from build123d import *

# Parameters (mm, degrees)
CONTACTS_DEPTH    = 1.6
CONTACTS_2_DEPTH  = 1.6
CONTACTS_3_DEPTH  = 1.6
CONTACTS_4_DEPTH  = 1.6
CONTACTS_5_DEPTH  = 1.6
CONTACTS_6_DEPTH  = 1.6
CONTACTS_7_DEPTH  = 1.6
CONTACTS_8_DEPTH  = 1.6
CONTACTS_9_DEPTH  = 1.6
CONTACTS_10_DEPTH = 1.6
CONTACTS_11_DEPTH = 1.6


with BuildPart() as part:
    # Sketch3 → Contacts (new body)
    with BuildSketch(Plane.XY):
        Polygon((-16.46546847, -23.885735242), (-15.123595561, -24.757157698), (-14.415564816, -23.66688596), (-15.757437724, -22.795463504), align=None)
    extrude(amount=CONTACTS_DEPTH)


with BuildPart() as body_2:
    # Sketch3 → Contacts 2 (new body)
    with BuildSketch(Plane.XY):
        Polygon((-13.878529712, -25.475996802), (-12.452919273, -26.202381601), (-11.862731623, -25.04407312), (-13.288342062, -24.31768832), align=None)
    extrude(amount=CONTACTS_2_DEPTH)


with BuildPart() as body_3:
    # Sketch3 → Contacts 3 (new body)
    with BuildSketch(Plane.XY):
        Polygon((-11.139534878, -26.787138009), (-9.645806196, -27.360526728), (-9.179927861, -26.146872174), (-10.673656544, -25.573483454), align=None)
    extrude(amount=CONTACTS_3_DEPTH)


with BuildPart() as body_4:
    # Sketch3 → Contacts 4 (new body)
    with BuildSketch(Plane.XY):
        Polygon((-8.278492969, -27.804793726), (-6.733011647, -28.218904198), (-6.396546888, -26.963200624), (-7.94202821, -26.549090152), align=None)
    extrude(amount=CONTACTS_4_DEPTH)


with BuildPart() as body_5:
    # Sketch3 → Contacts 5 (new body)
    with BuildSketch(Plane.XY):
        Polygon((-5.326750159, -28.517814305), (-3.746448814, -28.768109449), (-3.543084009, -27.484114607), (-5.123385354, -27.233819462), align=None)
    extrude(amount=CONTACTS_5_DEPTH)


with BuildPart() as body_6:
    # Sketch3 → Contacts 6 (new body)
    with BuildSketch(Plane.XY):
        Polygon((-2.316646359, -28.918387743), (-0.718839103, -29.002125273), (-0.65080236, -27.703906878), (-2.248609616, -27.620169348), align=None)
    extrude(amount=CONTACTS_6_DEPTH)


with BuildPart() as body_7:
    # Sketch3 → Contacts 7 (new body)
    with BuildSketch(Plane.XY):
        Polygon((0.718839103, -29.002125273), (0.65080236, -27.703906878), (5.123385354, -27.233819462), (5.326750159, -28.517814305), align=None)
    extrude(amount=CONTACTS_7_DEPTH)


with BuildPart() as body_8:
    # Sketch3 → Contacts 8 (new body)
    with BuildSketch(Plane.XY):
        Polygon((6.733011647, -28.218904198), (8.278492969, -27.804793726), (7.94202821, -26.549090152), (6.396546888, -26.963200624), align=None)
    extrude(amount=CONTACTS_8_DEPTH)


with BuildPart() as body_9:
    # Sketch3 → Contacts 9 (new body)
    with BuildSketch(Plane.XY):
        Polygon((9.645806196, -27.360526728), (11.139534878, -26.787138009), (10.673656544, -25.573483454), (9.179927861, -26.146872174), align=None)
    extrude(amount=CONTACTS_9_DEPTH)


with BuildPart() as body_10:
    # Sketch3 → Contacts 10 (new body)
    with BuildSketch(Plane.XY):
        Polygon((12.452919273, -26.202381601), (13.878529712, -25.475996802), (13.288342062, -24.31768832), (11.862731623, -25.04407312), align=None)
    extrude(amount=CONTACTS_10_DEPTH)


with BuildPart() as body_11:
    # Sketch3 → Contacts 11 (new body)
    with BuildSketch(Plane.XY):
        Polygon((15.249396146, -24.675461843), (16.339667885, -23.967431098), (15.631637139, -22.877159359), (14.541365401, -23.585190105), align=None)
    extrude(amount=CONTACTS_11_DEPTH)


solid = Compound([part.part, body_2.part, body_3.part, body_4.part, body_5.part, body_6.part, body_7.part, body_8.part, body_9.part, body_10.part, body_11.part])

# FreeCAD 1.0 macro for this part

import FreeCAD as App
import Part
import Sketcher
Q = App.Units.Quantity

doc = App.newDocument("Part")
body = doc.addObject("PartDesign::Body", "Body")

sketch1 = body.newObject("Sketcher::SketchObject", "Sketch")
sketch1.AttachmentSupport = (doc.getObject("XY_Plane"), [""])
sketch1.MapMode = "FlatFace"
sketch1.addGeometry(Part.LineSegment(App.Vector(-16.465468, -23.885735, 0), App.Vector(-15.123596, -24.757158, 0)), False)
sketch1.addGeometry(Part.LineSegment(App.Vector(-15.123596, -24.757158, 0), App.Vector(-14.415565, -23.666886, 0)), False)
sketch1.addGeometry(Part.LineSegment(App.Vector(-14.415565, -23.666886, 0), App.Vector(-15.757438, -22.795464, 0)), False)
sketch1.addGeometry(Part.LineSegment(App.Vector(-15.757438, -22.795464, 0), App.Vector(-16.465468, -23.885735, 0)), False)
sketch1.addConstraint(Sketcher.Constraint("Coincident", 0, 2, 1, 1))
sketch1.addConstraint(Sketcher.Constraint("Coincident", 1, 2, 2, 1))
sketch1.addConstraint(Sketcher.Constraint("Coincident", 2, 2, 3, 1))
sketch1.addConstraint(Sketcher.Constraint("Coincident", 3, 2, 0, 1))
sketch1.addConstraint(Sketcher.Constraint("Perpendicular", 0, 1))
sketch1.addConstraint(Sketcher.Constraint("Perpendicular", 1, 2))
sketch1.addConstraint(Sketcher.Constraint("Perpendicular", 2, 3))
sketch1.addConstraint(Sketcher.Constraint("Angle", 0, Q("-33 deg")))
sketch1.addConstraint(Sketcher.Constraint("Distance", 0, 1.6))
sketch1.addConstraint(Sketcher.Constraint("Distance", 1, 1.3))
sketch1.addConstraint(Sketcher.Constraint("DistanceX", 3, 2, -1, 1, 16.465468))
sketch1.addConstraint(Sketcher.Constraint("DistanceY", 0, 2, -1, 1, 24.757158))
pad1 = body.newObject("PartDesign::Pad", "Pad")
pad1.Profile = sketch1
pad1.Length = 1.6
body2 = doc.addObject("PartDesign::Body", "Body001")

sketch2 = body2.newObject("Sketcher::SketchObject", "Sketch001")
sketch2.AttachmentSupport = (doc.getObject("XY_Plane001"), [""])
sketch2.MapMode = "FlatFace"
sketch2.addGeometry(Part.LineSegment(App.Vector(-13.87853, -25.475997, 0), App.Vector(-12.452919, -26.202382, 0)), False)
sketch2.addGeometry(Part.LineSegment(App.Vector(-12.452919, -26.202382, 0), App.Vector(-11.862732, -25.044073, 0)), False)
sketch2.addGeometry(Part.LineSegment(App.Vector(-11.862732, -25.044073, 0), App.Vector(-13.288342, -24.317688, 0)), False)
sketch2.addGeometry(Part.LineSegment(App.Vector(-13.288342, -24.317688, 0), App.Vector(-13.87853, -25.475997, 0)), False)
sketch2.addConstraint(Sketcher.Constraint("Coincident", 0, 2, 1, 1))
sketch2.addConstraint(Sketcher.Constraint("Coincident", 1, 2, 2, 1))
sketch2.addConstraint(Sketcher.Constraint("Coincident", 2, 2, 3, 1))
sketch2.addConstraint(Sketcher.Constraint("Coincident", 3, 2, 0, 1))
sketch2.addConstraint(Sketcher.Constraint("Perpendicular", 0, 1))
sketch2.addConstraint(Sketcher.Constraint("Perpendicular", 1, 2))
sketch2.addConstraint(Sketcher.Constraint("Perpendicular", 2, 3))
sketch2.addConstraint(Sketcher.Constraint("Angle", 0, Q("-27 deg")))
sketch2.addConstraint(Sketcher.Constraint("Distance", 0, 1.6))
sketch2.addConstraint(Sketcher.Constraint("Distance", 1, 1.3))
sketch2.addConstraint(Sketcher.Constraint("DistanceX", 0, 2, -1, 1, 12.452919))
sketch2.addConstraint(Sketcher.Constraint("DistanceY", 0, 2, -1, 1, 26.202382))
pad2 = body2.newObject("PartDesign::Pad", "Pad001")
pad2.Profile = sketch2
pad2.Length = 1.6
body3 = doc.addObject("PartDesign::Body", "Body002")

sketch3 = body3.newObject("Sketcher::SketchObject", "Sketch002")
sketch3.AttachmentSupport = (doc.getObject("XY_Plane002"), [""])
sketch3.MapMode = "FlatFace"
sketch3.addGeometry(Part.LineSegment(App.Vector(-11.139535, -26.787138, 0), App.Vector(-9.645806, -27.360527, 0)), False)
sketch3.addGeometry(Part.LineSegment(App.Vector(-9.645806, -27.360527, 0), App.Vector(-9.179928, -26.146872, 0)), False)
sketch3.addGeometry(Part.LineSegment(App.Vector(-9.179928, -26.146872, 0), App.Vector(-10.673657, -25.573483, 0)), False)
sketch3.addGeometry(Part.LineSegment(App.Vector(-10.673657, -25.573483, 0), App.Vector(-11.139535, -26.787138, 0)), False)
sketch3.addConstraint(Sketcher.Constraint("Coincident", 0, 2, 1, 1))
sketch3.addConstraint(Sketcher.Constraint("Coincident", 1, 2, 2, 1))
sketch3.addConstraint(Sketcher.Constraint("Coincident", 2, 2, 3, 1))
sketch3.addConstraint(Sketcher.Constraint("Coincident", 3, 2, 0, 1))
sketch3.addConstraint(Sketcher.Constraint("Perpendicular", 0, 1))
sketch3.addConstraint(Sketcher.Constraint("Perpendicular", 1, 2))
sketch3.addConstraint(Sketcher.Constraint("Perpendicular", 2, 3))
sketch3.addConstraint(Sketcher.Constraint("Angle", 0, Q("-21 deg")))
sketch3.addConstraint(Sketcher.Constraint("Distance", 0, 1.6))
sketch3.addConstraint(Sketcher.Constraint("Distance", 1, 1.3))
sketch3.addConstraint(Sketcher.Constraint("DistanceY", 3, 2, -1, 1, 26.787138))
sketch3.addConstraint(Sketcher.Constraint("DistanceX", 0, 2, -1, 1, 9.645806))
pad3 = body3.newObject("PartDesign::Pad", "Pad002")
pad3.Profile = sketch3
pad3.Length = 1.6
body4 = doc.addObject("PartDesign::Body", "Body003")

sketch4 = body4.newObject("Sketcher::SketchObject", "Sketch003")
sketch4.AttachmentSupport = (doc.getObject("XY_Plane003"), [""])
sketch4.MapMode = "FlatFace"
sketch4.addGeometry(Part.LineSegment(App.Vector(-8.278493, -27.804794, 0), App.Vector(-6.733012, -28.218904, 0)), False)
sketch4.addGeometry(Part.LineSegment(App.Vector(-6.733012, -28.218904, 0), App.Vector(-6.396547, -26.963201, 0)), False)
sketch4.addGeometry(Part.LineSegment(App.Vector(-6.396547, -26.963201, 0), App.Vector(-7.942028, -26.54909, 0)), False)
sketch4.addGeometry(Part.LineSegment(App.Vector(-7.942028, -26.54909, 0), App.Vector(-8.278493, -27.804794, 0)), False)
sketch4.addConstraint(Sketcher.Constraint("Coincident", 0, 2, 1, 1))
sketch4.addConstraint(Sketcher.Constraint("Coincident", 1, 2, 2, 1))
sketch4.addConstraint(Sketcher.Constraint("Coincident", 2, 2, 3, 1))
sketch4.addConstraint(Sketcher.Constraint("Coincident", 3, 2, 0, 1))
sketch4.addConstraint(Sketcher.Constraint("Perpendicular", 0, 1))
sketch4.addConstraint(Sketcher.Constraint("Perpendicular", 1, 2))
sketch4.addConstraint(Sketcher.Constraint("Perpendicular", 2, 3))
sketch4.addConstraint(Sketcher.Constraint("Angle", 0, Q("-15 deg")))
sketch4.addConstraint(Sketcher.Constraint("Distance", 0, 1.6))
sketch4.addConstraint(Sketcher.Constraint("Distance", 1, 1.3))
sketch4.addConstraint(Sketcher.Constraint("DistanceY", 1, 2, -1, 1, 26.963201))
sketch4.addConstraint(Sketcher.Constraint("DistanceX", 0, 2, -1, 1, 6.733012))
pad4 = body4.newObject("PartDesign::Pad", "Pad003")
pad4.Profile = sketch4
pad4.Length = 1.6
body5 = doc.addObject("PartDesign::Body", "Body004")

sketch5 = body5.newObject("Sketcher::SketchObject", "Sketch004")
sketch5.AttachmentSupport = (doc.getObject("XY_Plane004"), [""])
sketch5.MapMode = "FlatFace"
sketch5.addGeometry(Part.LineSegment(App.Vector(-5.32675, -28.517814, 0), App.Vector(-3.746449, -28.768109, 0)), False)
sketch5.addGeometry(Part.LineSegment(App.Vector(-3.746449, -28.768109, 0), App.Vector(-3.543084, -27.484115, 0)), False)
sketch5.addGeometry(Part.LineSegment(App.Vector(-3.543084, -27.484115, 0), App.Vector(-5.123385, -27.233819, 0)), False)
sketch5.addGeometry(Part.LineSegment(App.Vector(-5.123385, -27.233819, 0), App.Vector(-5.32675, -28.517814, 0)), False)
sketch5.addConstraint(Sketcher.Constraint("Coincident", 0, 2, 1, 1))
sketch5.addConstraint(Sketcher.Constraint("Coincident", 1, 2, 2, 1))
sketch5.addConstraint(Sketcher.Constraint("Coincident", 2, 2, 3, 1))
sketch5.addConstraint(Sketcher.Constraint("Coincident", 3, 2, 0, 1))
sketch5.addConstraint(Sketcher.Constraint("Perpendicular", 0, 1))
sketch5.addConstraint(Sketcher.Constraint("Perpendicular", 1, 2))
sketch5.addConstraint(Sketcher.Constraint("Perpendicular", 2, 3))
sketch5.addConstraint(Sketcher.Constraint("Angle", 0, Q("-9 deg")))
sketch5.addConstraint(Sketcher.Constraint("Distance", 0, 1.6))
sketch5.addConstraint(Sketcher.Constraint("Distance", 1, 1.3))
sketch5.addConstraint(Sketcher.Constraint("DistanceX", 0, 2, -1, 1, 3.746449))
sketch5.addConstraint(Sketcher.Constraint("DistanceY", 0, 2, -1, 1, 28.768109))
pad5 = body5.newObject("PartDesign::Pad", "Pad004")
pad5.Profile = sketch5
pad5.Length = 1.6
body6 = doc.addObject("PartDesign::Body", "Body005")

sketch6 = body6.newObject("Sketcher::SketchObject", "Sketch005")
sketch6.AttachmentSupport = (doc.getObject("XY_Plane005"), [""])
sketch6.MapMode = "FlatFace"
sketch6.addGeometry(Part.LineSegment(App.Vector(-2.316646, -28.918388, 0), App.Vector(-0.718839, -29.002125, 0)), False)
sketch6.addGeometry(Part.LineSegment(App.Vector(-0.718839, -29.002125, 0), App.Vector(-0.650802, -27.703907, 0)), False)
sketch6.addGeometry(Part.LineSegment(App.Vector(-0.650802, -27.703907, 0), App.Vector(-2.24861, -27.620169, 0)), False)
sketch6.addGeometry(Part.LineSegment(App.Vector(-2.24861, -27.620169, 0), App.Vector(-2.316646, -28.918388, 0)), False)
sketch6.addConstraint(Sketcher.Constraint("Coincident", 0, 2, 1, 1))
sketch6.addConstraint(Sketcher.Constraint("Coincident", 1, 2, 2, 1))
sketch6.addConstraint(Sketcher.Constraint("Coincident", 2, 2, 3, 1))
sketch6.addConstraint(Sketcher.Constraint("Coincident", 3, 2, 0, 1))
sketch6.addConstraint(Sketcher.Constraint("Perpendicular", 0, 1))
sketch6.addConstraint(Sketcher.Constraint("Perpendicular", 1, 2))
sketch6.addConstraint(Sketcher.Constraint("Perpendicular", 2, 3))
sketch6.addConstraint(Sketcher.Constraint("Angle", 0, Q("-3 deg")))
sketch6.addConstraint(Sketcher.Constraint("Distance", 0, 1.6))
sketch6.addConstraint(Sketcher.Constraint("Distance", 1, 1.3))
sketch6.addConstraint(Sketcher.Constraint("DistanceX", 0, 2, -1, 1, 0.718839))
sketch6.addConstraint(Sketcher.Constraint("DistanceY", 2, 2, -1, 1, 27.620169))
pad6 = body6.newObject("PartDesign::Pad", "Pad005")
pad6.Profile = sketch6
pad6.Length = 1.6
body7 = doc.addObject("PartDesign::Body", "Body006")

sketch7 = body7.newObject("Sketcher::SketchObject", "Sketch006")
sketch7.AttachmentSupport = (doc.getObject("XY_Plane006"), [""])
sketch7.MapMode = "FlatFace"
sketch7.addGeometry(Part.LineSegment(App.Vector(0.650802, -27.703907, 0), App.Vector(0.718839, -29.002125, 0)), False)
sketch7.addGeometry(Part.LineSegment(App.Vector(0.718839, -29.002125, 0), App.Vector(5.32675, -28.517814, 0)), False)
sketch7.addGeometry(Part.LineSegment(App.Vector(5.32675, -28.517814, 0), App.Vector(5.123385, -27.233819, 0)), False)
sketch7.addGeometry(Part.LineSegment(App.Vector(5.123385, -27.233819, 0), App.Vector(0.650802, -27.703907, 0)), False)
sketch7.addConstraint(Sketcher.Constraint("Coincident", 0, 2, 1, 1))
sketch7.addConstraint(Sketcher.Constraint("Coincident", 1, 2, 2, 1))
sketch7.addConstraint(Sketcher.Constraint("Coincident", 2, 2, 3, 1))
sketch7.addConstraint(Sketcher.Constraint("Coincident", 3, 2, 0, 1))
sketch7.addConstraint(Sketcher.Constraint("Parallel", 1, 3))
sketch7.addConstraint(Sketcher.Constraint("Equal", 0, 2))
sketch7.addConstraint(Sketcher.Constraint("Angle", 0, Q("-87 deg")))
sketch7.addConstraint(Sketcher.Constraint("Angle", 1, Q("6 deg")))
sketch7.addConstraint(Sketcher.Constraint("Distance", 0, 1.3))
sketch7.addConstraint(Sketcher.Constraint("Distance", 3, 4.497219))
sketch7.addConstraint(Sketcher.Constraint("DistanceX", -1, 1, 0, 2, 0.718839))
sketch7.addConstraint(Sketcher.Constraint("DistanceY", 2, 2, -1, 1, 27.233819))
pad7 = body7.newObject("PartDesign::Pad", "Pad006")
pad7.Profile = sketch7
pad7.Length = 1.6
body8 = doc.addObject("PartDesign::Body", "Body007")

sketch8 = body8.newObject("Sketcher::SketchObject", "Sketch007")
sketch8.AttachmentSupport = (doc.getObject("XY_Plane007"), [""])
sketch8.MapMode = "FlatFace"
sketch8.addGeometry(Part.LineSegment(App.Vector(6.733012, -28.218904, 0), App.Vector(8.278493, -27.804794, 0)), False)
sketch8.addGeometry(Part.LineSegment(App.Vector(8.278493, -27.804794, 0), App.Vector(7.942028, -26.54909, 0)), False)
sketch8.addGeometry(Part.LineSegment(App.Vector(7.942028, -26.54909, 0), App.Vector(6.396547, -26.963201, 0)), False)
sketch8.addGeometry(Part.LineSegment(App.Vector(6.396547, -26.963201, 0), App.Vector(6.733012, -28.218904, 0)), False)
sketch8.addConstraint(Sketcher.Constraint("Coincident", 0, 2, 1, 1))
sketch8.addConstraint(Sketcher.Constraint("Coincident", 1, 2, 2, 1))
sketch8.addConstraint(Sketcher.Constraint("Coincident", 2, 2, 3, 1))
sketch8.addConstraint(Sketcher.Constraint("Coincident", 3, 2, 0, 1))
sketch8.addConstraint(Sketcher.Constraint("Perpendicular", 0, 1))
sketch8.addConstraint(Sketcher.Constraint("Perpendicular", 1, 2))
sketch8.addConstraint(Sketcher.Constraint("Perpendicular", 2, 3))
sketch8.addConstraint(Sketcher.Constraint("Angle", 0, Q("15 deg")))
sketch8.addConstraint(Sketcher.Constraint("Distance", 0, 1.6))
sketch8.addConstraint(Sketcher.Constraint("Distance", 1, 1.3))
sketch8.addConstraint(Sketcher.Constraint("DistanceY", 2, 2, -1, 1, 26.963201))
sketch8.addConstraint(Sketcher.Constraint("DistanceX", -1, 1, 1, 2, 7.942028))
pad8 = body8.newObject("PartDesign::Pad", "Pad007")
pad8.Profile = sketch8
pad8.Length = 1.6
body9 = doc.addObject("PartDesign::Body", "Body008")

sketch9 = body9.newObject("Sketcher::SketchObject", "Sketch008")
sketch9.AttachmentSupport = (doc.getObject("XY_Plane008"), [""])
sketch9.MapMode = "FlatFace"
sketch9.addGeometry(Part.LineSegment(App.Vector(9.645806, -27.360527, 0), App.Vector(11.139535, -26.787138, 0)), False)
sketch9.addGeometry(Part.LineSegment(App.Vector(11.139535, -26.787138, 0), App.Vector(10.673657, -25.573483, 0)), False)
sketch9.addGeometry(Part.LineSegment(App.Vector(10.673657, -25.573483, 0), App.Vector(9.179928, -26.146872, 0)), False)
sketch9.addGeometry(Part.LineSegment(App.Vector(9.179928, -26.146872, 0), App.Vector(9.645806, -27.360527, 0)), False)
sketch9.addConstraint(Sketcher.Constraint("Coincident", 0, 2, 1, 1))
sketch9.addConstraint(Sketcher.Constraint("Coincident", 1, 2, 2, 1))
sketch9.addConstraint(Sketcher.Constraint("Coincident", 2, 2, 3, 1))
sketch9.addConstraint(Sketcher.Constraint("Coincident", 3, 2, 0, 1))
sketch9.addConstraint(Sketcher.Constraint("Perpendicular", 0, 1))
sketch9.addConstraint(Sketcher.Constraint("Perpendicular", 1, 2))
sketch9.addConstraint(Sketcher.Constraint("Perpendicular", 2, 3))
sketch9.addConstraint(Sketcher.Constraint("Angle", 0, Q("21 deg")))
sketch9.addConstraint(Sketcher.Constraint("Distance", 0, 1.6))
sketch9.addConstraint(Sketcher.Constraint("Distance", 1, 1.3))
sketch9.addConstraint(Sketcher.Constraint("DistanceY", 0, 2, -1, 1, 26.787138))
sketch9.addConstraint(Sketcher.Constraint("DistanceX", -1, 1, 0, 2, 11.139535))
pad9 = body9.newObject("PartDesign::Pad", "Pad008")
pad9.Profile = sketch9
pad9.Length = 1.6
body10 = doc.addObject("PartDesign::Body", "Body009")

sketch10 = body10.newObject("Sketcher::SketchObject", "Sketch009")
sketch10.AttachmentSupport = (doc.getObject("XY_Plane009"), [""])
sketch10.MapMode = "FlatFace"
sketch10.addGeometry(Part.LineSegment(App.Vector(12.452919, -26.202382, 0), App.Vector(13.87853, -25.475997, 0)), False)
sketch10.addGeometry(Part.LineSegment(App.Vector(13.87853, -25.475997, 0), App.Vector(13.288342, -24.317688, 0)), False)
sketch10.addGeometry(Part.LineSegment(App.Vector(13.288342, -24.317688, 0), App.Vector(11.862732, -25.044073, 0)), False)
sketch10.addGeometry(Part.LineSegment(App.Vector(11.862732, -25.044073, 0), App.Vector(12.452919, -26.202382, 0)), False)
sketch10.addConstraint(Sketcher.Constraint("Coincident", 0, 2, 1, 1))
sketch10.addConstraint(Sketcher.Constraint("Coincident", 1, 2, 2, 1))
sketch10.addConstraint(Sketcher.Constraint("Coincident", 2, 2, 3, 1))
sketch10.addConstraint(Sketcher.Constraint("Coincident", 3, 2, 0, 1))
sketch10.addConstraint(Sketcher.Constraint("Perpendicular", 0, 1))
sketch10.addConstraint(Sketcher.Constraint("Perpendicular", 1, 2))
sketch10.addConstraint(Sketcher.Constraint("Perpendicular", 2, 3))
sketch10.addConstraint(Sketcher.Constraint("Angle", 0, Q("27 deg")))
sketch10.addConstraint(Sketcher.Constraint("Distance", 0, 1.6))
sketch10.addConstraint(Sketcher.Constraint("Distance", 1, 1.3))
sketch10.addConstraint(Sketcher.Constraint("DistanceX", -1, 1, 0, 2, 13.87853))
sketch10.addConstraint(Sketcher.Constraint("DistanceY", 1, 2, -1, 1, 24.317688))
pad10 = body10.newObject("PartDesign::Pad", "Pad009")
pad10.Profile = sketch10
pad10.Length = 1.6
body11 = doc.addObject("PartDesign::Body", "Body010")

sketch11 = body11.newObject("Sketcher::SketchObject", "Sketch010")
sketch11.AttachmentSupport = (doc.getObject("XY_Plane010"), [""])
sketch11.MapMode = "FlatFace"
sketch11.addGeometry(Part.LineSegment(App.Vector(15.249396, -24.675462, 0), App.Vector(16.339668, -23.967431, 0)), False)
sketch11.addGeometry(Part.LineSegment(App.Vector(16.339668, -23.967431, 0), App.Vector(15.631637, -22.877159, 0)), False)
sketch11.addGeometry(Part.LineSegment(App.Vector(15.631637, -22.877159, 0), App.Vector(14.541365, -23.58519, 0)), False)
sketch11.addGeometry(Part.LineSegment(App.Vector(14.541365, -23.58519, 0), App.Vector(15.249396, -24.675462, 0)), False)
sketch11.addConstraint(Sketcher.Constraint("Coincident", 0, 2, 1, 1))
sketch11.addConstraint(Sketcher.Constraint("Coincident", 1, 2, 2, 1))
sketch11.addConstraint(Sketcher.Constraint("Coincident", 2, 2, 3, 1))
sketch11.addConstraint(Sketcher.Constraint("Coincident", 3, 2, 0, 1))
sketch11.addConstraint(Sketcher.Constraint("Perpendicular", 0, 1))
sketch11.addConstraint(Sketcher.Constraint("Perpendicular", 1, 2))
sketch11.addConstraint(Sketcher.Constraint("Perpendicular", 2, 3))
sketch11.addConstraint(Sketcher.Constraint("Equal", 0, 1))
sketch11.addConstraint(Sketcher.Constraint("Angle", 0, Q("33 deg")))
sketch11.addConstraint(Sketcher.Constraint("Distance", 0, 1.3))
sketch11.addConstraint(Sketcher.Constraint("DistanceY", 0, 2, -1, 1, 23.967431))
sketch11.addConstraint(Sketcher.Constraint("DistanceX", -1, 1, 0, 2, 16.339668))
pad11 = body11.newObject("PartDesign::Pad", "Pad010")
pad11.Profile = sketch11
pad11.Length = 1.6

doc.recompute()
